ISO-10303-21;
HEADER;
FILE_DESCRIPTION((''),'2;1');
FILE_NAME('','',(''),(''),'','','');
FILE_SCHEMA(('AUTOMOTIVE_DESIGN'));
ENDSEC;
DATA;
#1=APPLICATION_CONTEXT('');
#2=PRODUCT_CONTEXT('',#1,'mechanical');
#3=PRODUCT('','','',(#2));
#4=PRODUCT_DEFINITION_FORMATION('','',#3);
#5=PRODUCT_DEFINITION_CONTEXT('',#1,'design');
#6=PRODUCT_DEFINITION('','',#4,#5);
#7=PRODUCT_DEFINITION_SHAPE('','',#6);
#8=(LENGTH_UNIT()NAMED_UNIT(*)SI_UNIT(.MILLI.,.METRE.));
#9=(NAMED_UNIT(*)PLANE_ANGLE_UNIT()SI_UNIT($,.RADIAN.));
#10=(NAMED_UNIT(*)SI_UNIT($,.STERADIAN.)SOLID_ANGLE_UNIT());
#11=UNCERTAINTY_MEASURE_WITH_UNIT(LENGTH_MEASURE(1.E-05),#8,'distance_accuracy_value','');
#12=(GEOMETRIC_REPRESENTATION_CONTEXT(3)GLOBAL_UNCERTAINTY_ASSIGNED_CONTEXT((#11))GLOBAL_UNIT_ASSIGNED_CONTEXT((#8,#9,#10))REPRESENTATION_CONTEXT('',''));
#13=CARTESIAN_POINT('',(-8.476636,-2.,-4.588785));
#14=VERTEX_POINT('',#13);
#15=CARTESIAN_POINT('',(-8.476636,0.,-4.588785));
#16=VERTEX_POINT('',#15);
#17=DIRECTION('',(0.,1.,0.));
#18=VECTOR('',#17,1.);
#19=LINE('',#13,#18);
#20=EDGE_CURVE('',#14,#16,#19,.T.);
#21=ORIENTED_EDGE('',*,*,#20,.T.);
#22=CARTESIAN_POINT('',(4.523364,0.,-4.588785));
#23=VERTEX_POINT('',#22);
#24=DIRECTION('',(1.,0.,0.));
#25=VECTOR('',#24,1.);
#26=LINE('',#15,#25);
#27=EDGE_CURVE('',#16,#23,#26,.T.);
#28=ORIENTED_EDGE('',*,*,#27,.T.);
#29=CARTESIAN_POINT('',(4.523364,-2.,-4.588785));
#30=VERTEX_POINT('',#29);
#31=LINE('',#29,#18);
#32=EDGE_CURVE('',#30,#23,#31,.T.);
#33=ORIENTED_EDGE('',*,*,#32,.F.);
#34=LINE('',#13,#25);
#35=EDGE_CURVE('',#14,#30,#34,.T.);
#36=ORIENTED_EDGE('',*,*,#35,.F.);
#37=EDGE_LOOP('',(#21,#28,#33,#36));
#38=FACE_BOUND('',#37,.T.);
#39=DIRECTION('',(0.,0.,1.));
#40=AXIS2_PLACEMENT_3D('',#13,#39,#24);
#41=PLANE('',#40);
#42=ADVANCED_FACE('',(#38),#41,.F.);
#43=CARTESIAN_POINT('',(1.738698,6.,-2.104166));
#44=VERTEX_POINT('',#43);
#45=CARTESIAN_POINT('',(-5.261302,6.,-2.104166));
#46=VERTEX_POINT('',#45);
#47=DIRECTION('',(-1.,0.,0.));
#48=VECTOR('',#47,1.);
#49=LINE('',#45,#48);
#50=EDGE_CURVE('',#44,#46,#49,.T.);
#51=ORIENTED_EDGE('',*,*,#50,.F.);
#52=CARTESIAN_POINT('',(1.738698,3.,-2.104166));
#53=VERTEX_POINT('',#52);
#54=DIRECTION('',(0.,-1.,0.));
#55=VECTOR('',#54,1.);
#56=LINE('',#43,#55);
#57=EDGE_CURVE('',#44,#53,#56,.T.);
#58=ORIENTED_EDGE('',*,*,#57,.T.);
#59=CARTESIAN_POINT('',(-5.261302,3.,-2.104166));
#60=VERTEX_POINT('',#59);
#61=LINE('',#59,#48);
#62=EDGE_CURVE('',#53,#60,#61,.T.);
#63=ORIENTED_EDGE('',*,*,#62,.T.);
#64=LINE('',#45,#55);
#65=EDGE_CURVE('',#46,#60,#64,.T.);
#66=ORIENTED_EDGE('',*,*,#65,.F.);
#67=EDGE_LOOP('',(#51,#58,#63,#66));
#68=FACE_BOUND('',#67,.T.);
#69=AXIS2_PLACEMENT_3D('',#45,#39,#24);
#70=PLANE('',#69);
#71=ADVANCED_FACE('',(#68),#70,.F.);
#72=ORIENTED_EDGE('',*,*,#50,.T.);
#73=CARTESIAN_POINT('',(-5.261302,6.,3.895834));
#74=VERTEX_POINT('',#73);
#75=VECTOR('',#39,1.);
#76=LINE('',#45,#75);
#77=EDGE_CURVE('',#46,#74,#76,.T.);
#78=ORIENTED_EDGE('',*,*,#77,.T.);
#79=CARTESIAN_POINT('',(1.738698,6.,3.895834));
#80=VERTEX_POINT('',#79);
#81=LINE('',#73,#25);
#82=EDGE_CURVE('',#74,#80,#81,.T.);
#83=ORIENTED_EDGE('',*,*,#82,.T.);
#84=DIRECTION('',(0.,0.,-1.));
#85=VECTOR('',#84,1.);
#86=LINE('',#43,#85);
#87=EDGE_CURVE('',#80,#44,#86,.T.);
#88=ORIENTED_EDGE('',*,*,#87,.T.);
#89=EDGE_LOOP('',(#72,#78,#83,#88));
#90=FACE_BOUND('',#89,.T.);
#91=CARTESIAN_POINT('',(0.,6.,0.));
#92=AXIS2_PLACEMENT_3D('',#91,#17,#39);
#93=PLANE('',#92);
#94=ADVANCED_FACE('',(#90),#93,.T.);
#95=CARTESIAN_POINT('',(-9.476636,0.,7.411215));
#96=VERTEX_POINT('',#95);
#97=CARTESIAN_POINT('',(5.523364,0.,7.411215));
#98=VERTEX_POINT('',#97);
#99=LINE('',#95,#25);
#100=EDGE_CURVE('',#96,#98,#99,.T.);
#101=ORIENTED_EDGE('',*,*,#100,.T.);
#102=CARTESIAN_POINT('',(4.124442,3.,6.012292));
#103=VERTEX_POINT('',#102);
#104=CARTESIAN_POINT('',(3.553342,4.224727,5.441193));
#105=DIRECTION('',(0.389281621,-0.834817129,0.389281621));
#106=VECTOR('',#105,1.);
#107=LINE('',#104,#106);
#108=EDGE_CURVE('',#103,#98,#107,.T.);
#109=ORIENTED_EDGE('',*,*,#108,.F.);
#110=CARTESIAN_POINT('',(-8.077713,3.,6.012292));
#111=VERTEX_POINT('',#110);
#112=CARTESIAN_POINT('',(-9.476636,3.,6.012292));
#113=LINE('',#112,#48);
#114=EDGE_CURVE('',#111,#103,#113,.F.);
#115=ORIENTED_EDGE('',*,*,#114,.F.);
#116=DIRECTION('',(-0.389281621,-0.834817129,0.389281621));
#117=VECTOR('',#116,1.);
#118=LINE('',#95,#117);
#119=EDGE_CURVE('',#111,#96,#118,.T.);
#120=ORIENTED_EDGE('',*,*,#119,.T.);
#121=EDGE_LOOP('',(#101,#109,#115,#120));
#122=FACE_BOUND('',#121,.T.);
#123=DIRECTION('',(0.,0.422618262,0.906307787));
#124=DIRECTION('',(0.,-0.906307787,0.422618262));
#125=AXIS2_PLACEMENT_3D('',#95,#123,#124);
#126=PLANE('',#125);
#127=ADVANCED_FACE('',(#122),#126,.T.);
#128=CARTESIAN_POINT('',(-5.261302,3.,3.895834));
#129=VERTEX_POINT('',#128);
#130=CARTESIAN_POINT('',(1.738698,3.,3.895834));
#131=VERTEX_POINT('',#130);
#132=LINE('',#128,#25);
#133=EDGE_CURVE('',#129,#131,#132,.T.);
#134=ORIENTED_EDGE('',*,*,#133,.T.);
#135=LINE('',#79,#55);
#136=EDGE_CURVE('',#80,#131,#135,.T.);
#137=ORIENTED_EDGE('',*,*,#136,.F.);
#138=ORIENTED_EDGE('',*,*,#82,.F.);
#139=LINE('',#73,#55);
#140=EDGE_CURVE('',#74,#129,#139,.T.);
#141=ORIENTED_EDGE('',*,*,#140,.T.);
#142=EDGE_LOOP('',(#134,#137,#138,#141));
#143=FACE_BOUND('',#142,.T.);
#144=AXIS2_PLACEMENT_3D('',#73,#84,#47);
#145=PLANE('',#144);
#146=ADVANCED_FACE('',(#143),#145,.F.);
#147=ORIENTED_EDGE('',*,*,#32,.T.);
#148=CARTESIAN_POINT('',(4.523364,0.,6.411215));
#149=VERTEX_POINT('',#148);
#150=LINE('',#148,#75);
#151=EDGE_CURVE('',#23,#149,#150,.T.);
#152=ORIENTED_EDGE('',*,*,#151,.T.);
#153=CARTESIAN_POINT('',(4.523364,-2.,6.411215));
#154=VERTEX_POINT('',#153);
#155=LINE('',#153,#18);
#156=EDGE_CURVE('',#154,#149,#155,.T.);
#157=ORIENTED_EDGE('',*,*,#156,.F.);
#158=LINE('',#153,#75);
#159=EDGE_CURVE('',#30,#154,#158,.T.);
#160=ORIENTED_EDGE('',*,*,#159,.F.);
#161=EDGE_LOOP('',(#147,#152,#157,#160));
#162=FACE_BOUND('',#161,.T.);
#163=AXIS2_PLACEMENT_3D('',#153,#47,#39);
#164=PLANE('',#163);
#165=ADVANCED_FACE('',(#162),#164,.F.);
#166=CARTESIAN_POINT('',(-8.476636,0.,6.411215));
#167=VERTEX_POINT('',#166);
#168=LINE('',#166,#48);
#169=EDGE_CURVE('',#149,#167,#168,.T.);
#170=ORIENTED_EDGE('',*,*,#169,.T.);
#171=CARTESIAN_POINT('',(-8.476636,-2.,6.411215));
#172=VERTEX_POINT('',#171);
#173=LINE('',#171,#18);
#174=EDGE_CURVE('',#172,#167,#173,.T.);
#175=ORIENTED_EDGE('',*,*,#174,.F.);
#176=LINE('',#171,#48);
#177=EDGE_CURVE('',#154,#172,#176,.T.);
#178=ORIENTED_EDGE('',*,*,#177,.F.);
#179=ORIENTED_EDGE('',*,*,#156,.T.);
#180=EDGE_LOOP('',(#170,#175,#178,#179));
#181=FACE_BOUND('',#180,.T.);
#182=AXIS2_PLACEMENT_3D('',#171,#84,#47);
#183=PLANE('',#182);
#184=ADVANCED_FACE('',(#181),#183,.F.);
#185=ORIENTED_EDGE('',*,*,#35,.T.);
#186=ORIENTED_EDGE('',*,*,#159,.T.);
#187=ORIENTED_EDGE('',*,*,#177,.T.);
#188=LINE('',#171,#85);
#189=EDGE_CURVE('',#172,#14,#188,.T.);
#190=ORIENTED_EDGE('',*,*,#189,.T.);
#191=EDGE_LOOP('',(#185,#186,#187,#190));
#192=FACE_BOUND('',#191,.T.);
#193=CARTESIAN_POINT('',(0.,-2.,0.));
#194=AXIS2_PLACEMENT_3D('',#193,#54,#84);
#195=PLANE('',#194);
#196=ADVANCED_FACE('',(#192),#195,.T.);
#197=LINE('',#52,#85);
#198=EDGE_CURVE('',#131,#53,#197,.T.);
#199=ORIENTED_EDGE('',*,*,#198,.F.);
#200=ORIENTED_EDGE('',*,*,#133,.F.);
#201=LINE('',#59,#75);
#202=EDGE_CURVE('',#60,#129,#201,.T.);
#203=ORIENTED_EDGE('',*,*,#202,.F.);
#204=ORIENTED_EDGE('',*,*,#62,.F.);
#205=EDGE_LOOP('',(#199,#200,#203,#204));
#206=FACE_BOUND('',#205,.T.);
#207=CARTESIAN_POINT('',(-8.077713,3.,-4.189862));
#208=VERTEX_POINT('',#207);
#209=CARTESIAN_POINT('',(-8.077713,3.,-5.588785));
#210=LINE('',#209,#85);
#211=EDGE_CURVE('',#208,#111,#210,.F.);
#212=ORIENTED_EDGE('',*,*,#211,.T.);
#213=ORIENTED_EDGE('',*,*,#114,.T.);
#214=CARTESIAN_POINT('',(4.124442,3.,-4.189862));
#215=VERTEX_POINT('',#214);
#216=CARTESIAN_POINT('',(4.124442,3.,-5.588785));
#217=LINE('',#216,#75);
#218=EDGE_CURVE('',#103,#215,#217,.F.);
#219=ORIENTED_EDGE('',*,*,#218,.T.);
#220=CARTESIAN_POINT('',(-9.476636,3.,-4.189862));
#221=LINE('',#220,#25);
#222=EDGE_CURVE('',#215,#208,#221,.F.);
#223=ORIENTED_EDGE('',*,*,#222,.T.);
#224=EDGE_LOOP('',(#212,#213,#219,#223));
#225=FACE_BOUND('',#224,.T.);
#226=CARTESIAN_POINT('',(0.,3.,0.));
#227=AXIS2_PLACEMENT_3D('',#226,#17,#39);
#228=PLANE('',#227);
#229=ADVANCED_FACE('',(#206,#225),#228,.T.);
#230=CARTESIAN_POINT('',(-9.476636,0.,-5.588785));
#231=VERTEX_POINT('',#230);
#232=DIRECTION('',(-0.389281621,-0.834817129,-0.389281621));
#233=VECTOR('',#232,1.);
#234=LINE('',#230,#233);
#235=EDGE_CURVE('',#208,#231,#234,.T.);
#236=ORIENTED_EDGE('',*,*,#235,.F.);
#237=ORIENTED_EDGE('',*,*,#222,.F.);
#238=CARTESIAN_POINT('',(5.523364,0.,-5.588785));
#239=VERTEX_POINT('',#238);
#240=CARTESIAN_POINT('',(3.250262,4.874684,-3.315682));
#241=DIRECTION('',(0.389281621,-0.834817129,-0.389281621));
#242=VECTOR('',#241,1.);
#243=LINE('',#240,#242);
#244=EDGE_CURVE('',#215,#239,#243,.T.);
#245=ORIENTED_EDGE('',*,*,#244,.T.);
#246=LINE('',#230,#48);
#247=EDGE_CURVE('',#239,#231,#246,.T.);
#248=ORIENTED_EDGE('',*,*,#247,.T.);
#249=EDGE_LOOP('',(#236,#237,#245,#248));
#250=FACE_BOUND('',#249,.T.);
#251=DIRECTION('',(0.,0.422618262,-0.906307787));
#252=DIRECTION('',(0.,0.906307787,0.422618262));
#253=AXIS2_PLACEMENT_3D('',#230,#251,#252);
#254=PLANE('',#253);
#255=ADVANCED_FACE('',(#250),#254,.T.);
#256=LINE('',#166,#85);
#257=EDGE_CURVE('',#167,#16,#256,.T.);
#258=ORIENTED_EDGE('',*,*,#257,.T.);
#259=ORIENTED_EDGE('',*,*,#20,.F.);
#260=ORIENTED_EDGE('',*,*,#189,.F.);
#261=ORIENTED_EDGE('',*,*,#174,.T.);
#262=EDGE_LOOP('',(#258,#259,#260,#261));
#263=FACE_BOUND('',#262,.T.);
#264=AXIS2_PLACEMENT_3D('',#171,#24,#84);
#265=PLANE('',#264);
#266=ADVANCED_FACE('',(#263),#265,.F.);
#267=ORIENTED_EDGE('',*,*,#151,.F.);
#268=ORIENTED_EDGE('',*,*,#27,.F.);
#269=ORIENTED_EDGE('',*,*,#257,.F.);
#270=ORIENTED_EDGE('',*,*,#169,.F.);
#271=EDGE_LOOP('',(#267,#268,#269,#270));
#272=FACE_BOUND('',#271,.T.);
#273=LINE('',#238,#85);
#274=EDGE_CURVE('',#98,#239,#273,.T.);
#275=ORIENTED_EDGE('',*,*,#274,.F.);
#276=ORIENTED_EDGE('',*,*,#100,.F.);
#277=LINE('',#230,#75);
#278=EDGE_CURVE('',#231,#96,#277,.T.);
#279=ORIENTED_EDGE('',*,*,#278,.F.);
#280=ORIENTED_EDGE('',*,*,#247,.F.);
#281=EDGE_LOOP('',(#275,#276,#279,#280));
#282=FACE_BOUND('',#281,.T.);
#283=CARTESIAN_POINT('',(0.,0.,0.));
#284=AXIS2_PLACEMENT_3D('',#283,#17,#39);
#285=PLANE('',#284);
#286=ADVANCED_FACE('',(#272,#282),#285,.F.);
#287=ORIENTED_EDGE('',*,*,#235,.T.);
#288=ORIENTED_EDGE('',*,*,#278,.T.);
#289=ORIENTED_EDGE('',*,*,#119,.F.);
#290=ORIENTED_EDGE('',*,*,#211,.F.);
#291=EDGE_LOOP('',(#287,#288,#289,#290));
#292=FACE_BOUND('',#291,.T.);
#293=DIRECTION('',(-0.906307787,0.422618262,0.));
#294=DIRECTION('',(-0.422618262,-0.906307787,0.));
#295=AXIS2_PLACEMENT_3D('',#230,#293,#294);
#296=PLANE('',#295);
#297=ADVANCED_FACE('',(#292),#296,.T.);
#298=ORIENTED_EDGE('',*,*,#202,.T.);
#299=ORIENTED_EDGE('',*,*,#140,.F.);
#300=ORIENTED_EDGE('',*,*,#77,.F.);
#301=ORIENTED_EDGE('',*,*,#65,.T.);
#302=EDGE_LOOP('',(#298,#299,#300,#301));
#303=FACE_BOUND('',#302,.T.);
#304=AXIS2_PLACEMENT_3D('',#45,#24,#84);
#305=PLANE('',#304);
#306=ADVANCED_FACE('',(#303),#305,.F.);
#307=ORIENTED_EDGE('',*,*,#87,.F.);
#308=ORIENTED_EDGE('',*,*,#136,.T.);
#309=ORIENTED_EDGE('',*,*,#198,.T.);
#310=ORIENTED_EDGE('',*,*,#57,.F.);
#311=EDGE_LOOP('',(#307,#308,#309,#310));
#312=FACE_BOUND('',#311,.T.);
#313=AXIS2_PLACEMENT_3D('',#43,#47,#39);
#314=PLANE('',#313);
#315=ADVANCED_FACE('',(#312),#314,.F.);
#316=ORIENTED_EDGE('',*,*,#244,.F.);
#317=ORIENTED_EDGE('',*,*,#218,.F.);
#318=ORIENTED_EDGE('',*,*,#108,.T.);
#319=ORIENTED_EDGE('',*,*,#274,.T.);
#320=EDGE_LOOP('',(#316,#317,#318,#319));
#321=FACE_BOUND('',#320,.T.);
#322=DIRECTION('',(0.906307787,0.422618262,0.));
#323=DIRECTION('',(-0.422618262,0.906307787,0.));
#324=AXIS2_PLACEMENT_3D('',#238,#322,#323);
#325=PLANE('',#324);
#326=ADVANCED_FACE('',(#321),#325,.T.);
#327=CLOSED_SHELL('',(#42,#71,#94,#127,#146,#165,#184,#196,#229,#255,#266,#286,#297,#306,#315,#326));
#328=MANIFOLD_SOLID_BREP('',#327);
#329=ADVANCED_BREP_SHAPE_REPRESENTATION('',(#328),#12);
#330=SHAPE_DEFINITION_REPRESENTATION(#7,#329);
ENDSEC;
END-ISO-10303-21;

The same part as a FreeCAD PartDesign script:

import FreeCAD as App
import Part
import Sketcher
from FreeCAD import Vector
Q = App.Units.Quantity


def add_polygon(sketch, points):
    """Adds a closed chain of lines whose ends are joined by coincident constraints."""
    first, n = sketch.GeometryCount, len(points)
    for a, b in zip(points, points[1:] + points[:1]):
        sketch.addGeometry(Part.LineSegment(App.Vector(*a, 0), App.Vector(*b, 0)), False)
    for i in range(n):
        sketch.addConstraint(Sketcher.Constraint("Coincident", first + i, 2, first + (i + 1) % n, 1))

doc = App.newDocument("Part")
body = doc.addObject("PartDesign::Body", "Body")

# Sketch on XZ plane
sketch1 = body.newObject("Sketcher::SketchObject", "Sketch")
sketch1.AttachmentSupport = (doc.getObject("XZ_Plane"), [""])
sketch1.MapMode = "FlatFace"
add_polygon(sketch1, [(-9.476636, -5.588785), (-9.476636, 7.411215), (5.523364, 7.411215), (5.523364, -5.588785)])  # lines 0-3
sketch1.addConstraint(Sketcher.Constraint("Vertical", 0))
sketch1.addConstraint(Sketcher.Constraint("Horizontal", 1))
sketch1.addConstraint(Sketcher.Constraint("Vertical", 2))
sketch1.addConstraint(Sketcher.Constraint("Horizontal", 3))
sketch1.addConstraint(Sketcher.Constraint("DistanceX", 1, 1, 1, 2, Q("15 mm")))
sketch1.addConstraint(Sketcher.Constraint("DistanceY", 0, 1, 0, 2, Q("13 mm")))
sketch1.addConstraint(Sketcher.Constraint("DistanceX", 0, 2, -1, 1, Q("9.476636 mm")))
sketch1.addConstraint(Sketcher.Constraint("DistanceY", -1, 1, 0, 2, Q("7.411215 mm")))
pad1 = body.newObject("PartDesign::Pad", "Pad")
pad1.Profile = sketch1
pad1.Length = 3
pad1.Reversed = True
pad1.TaperAngle = -25

# Sketch on XZ plane
sketch2 = body.newObject("Sketcher::SketchObject", "Sketch001")
sketch2.AttachmentSupport = (doc.getObject("XZ_Plane"), [""])
sketch2.MapMode = "FlatFace"
sketch2.AttachmentOffset = App.Placement(Vector(0, 0, -3), App.Rotation())
add_polygon(sketch2, [(-5.261302, -2.104166), (-5.261302, 3.895834), (1.738698, 3.895834), (1.738698, -2.104166)])  # lines 0-3
sketch2.addConstraint(Sketcher.Constraint("Vertical", 0))
sketch2.addConstraint(Sketcher.Constraint("Horizontal", 1))
sketch2.addConstraint(Sketcher.Constraint("Vertical", 2))
sketch2.addConstraint(Sketcher.Constraint("Horizontal", 3))
sketch2.addConstraint(Sketcher.Constraint("DistanceX", 1, 1, 1, 2, Q("7 mm")))
sketch2.addConstraint(Sketcher.Constraint("DistanceY", 0, 1, 0, 2, Q("6 mm")))
sketch2.addConstraint(Sketcher.Constraint("DistanceX", 0, 2, -1, 1, Q("5.261302 mm")))
sketch2.addConstraint(Sketcher.Constraint("DistanceY", -1, 1, 0, 2, Q("3.895834 mm")))
pad2 = body.newObject("PartDesign::Pad", "Pad001")
pad2.Profile = sketch2
pad2.Length = 3
pad2.Reversed = True

# Sketch on XZ plane
sketch3 = body.newObject("Sketcher::SketchObject", "Sketch002")
sketch3.AttachmentSupport = (doc.getObject("XZ_Plane"), [""])
sketch3.MapMode = "FlatFace"
add_polygon(sketch3, [(-8.476636, 6.411215), (-8.476636, -4.588785), (4.523364, -4.588785), (4.523364, 6.411215)])  # lines 0-3
sketch3.addConstraint(Sketcher.Constraint("Vertical", 0))
sketch3.addConstraint(Sketcher.Constraint("Horizontal", 1))
sketch3.addConstraint(Sketcher.Constraint("Vertical", 2))
sketch3.addConstraint(Sketcher.Constraint("Horizontal", 3))
sketch3.addConstraint(Sketcher.Constraint("DistanceX", 1, 1, 1, 2, Q("13 mm")))
sketch3.addConstraint(Sketcher.Constraint("DistanceY", 0, 2, 0, 1, Q("11 mm")))
sketch3.addConstraint(Sketcher.Constraint("DistanceX", 0, 2, -1, 1, Q("8.476636 mm")))
sketch3.addConstraint(Sketcher.Constraint("DistanceY", 0, 2, -1, 1, Q("4.588785 mm")))
pad3 = body.newObject("PartDesign::Pad", "Pad002")
pad3.Profile = sketch3
pad3.Length = 2

doc.recompute()
